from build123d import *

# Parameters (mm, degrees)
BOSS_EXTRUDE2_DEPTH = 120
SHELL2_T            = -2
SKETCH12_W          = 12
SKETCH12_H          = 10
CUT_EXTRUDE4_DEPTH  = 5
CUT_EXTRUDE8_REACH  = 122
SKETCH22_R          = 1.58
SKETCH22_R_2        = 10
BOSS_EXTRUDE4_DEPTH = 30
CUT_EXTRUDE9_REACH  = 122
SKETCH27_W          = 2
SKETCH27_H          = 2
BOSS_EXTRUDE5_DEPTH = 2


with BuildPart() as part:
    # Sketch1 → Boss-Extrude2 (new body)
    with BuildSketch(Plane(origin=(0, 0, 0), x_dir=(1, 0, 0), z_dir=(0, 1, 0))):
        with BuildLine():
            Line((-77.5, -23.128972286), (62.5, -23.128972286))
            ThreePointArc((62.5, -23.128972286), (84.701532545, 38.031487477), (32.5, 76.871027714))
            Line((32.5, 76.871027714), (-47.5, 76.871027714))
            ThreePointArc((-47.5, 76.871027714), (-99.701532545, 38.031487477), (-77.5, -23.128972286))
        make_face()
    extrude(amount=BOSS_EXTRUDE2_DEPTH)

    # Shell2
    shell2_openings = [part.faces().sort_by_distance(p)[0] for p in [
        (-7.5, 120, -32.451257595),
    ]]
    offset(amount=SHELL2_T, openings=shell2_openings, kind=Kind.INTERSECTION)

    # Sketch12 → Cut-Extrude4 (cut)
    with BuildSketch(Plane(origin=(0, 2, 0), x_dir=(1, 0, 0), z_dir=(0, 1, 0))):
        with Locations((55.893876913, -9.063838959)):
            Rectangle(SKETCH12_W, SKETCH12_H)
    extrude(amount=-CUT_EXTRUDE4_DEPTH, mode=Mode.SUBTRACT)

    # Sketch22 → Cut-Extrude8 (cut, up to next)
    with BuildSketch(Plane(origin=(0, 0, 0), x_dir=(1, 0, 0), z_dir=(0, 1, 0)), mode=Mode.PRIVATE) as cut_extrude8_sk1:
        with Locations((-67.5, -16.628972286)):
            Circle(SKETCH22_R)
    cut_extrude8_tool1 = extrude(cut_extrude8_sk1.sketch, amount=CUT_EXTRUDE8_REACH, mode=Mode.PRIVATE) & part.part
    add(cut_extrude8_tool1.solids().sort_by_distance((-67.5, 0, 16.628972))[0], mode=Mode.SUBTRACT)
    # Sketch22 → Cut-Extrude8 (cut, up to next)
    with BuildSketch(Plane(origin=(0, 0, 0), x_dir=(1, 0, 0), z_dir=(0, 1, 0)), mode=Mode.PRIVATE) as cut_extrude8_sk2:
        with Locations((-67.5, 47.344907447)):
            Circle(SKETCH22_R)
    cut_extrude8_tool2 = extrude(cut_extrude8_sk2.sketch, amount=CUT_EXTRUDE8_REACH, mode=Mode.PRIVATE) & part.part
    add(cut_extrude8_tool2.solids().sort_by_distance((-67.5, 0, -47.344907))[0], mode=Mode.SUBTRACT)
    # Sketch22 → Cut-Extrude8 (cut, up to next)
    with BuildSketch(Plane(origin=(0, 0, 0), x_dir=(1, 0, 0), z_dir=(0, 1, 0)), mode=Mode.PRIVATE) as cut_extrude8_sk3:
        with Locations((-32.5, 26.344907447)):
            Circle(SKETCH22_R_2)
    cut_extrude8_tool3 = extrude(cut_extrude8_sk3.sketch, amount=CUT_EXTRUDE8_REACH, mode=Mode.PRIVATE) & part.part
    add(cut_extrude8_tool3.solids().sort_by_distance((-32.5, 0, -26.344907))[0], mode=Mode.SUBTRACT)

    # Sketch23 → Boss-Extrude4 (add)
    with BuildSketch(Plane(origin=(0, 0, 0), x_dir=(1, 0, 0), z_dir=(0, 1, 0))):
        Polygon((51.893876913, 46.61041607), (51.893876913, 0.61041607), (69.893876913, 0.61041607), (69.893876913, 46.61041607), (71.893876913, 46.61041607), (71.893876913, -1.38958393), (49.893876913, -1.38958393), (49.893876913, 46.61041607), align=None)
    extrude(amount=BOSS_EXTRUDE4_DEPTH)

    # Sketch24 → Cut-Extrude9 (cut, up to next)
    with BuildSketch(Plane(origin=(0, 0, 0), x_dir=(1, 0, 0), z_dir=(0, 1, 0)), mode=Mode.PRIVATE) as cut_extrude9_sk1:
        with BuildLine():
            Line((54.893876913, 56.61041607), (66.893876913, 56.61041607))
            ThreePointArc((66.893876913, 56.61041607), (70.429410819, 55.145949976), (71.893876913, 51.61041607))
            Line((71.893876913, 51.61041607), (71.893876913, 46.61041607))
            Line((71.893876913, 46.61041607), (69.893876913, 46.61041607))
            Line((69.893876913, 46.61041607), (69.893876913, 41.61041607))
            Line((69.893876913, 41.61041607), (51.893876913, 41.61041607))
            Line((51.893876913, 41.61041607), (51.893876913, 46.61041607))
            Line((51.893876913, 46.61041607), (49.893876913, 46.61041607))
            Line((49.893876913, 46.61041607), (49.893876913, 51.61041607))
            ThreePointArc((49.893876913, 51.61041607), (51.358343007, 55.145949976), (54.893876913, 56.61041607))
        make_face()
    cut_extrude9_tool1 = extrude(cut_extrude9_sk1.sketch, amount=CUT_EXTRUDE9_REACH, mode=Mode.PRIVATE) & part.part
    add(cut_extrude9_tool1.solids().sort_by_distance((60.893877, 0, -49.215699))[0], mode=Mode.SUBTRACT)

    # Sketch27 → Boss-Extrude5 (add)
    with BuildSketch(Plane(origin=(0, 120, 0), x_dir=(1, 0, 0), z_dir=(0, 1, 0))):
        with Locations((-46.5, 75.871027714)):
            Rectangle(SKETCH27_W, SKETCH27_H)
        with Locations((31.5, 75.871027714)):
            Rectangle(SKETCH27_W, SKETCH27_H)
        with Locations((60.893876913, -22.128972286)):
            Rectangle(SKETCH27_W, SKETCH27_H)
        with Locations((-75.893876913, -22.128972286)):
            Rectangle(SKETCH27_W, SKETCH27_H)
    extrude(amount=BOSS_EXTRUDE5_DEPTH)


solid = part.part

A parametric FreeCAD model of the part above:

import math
import FreeCAD as App
import Part
import Sketcher

V = App.Vector


def faces_at(feature, points):
    """Names of the faces that lie closest to the given points."""
    faces = feature.Shape.Faces
    near = lambda p: min(range(len(faces)), key=lambda i: faces[i].distToShape(Part.Vertex(*p))[0])
    return sorted({f"Face{near(p) + 1}" for p in points})

doc = App.newDocument("Part")
body = doc.addObject("PartDesign::Body", "Body")

sketch1 = body.newObject("Sketcher::SketchObject", "Sketch")
sketch1.AttachmentSupport = (doc.getObject("XZ_Plane"), [""])
sketch1.MapMode = "FlatFace"
sketch1.addGeometry([
    Part.LineSegment(V(-78, 23, 0), V(62, 23, 0)),
    Part.ArcOfCircle(Part.Circle(V(32, -22, 0), V(0, 0, 1), 54), math.radians(-90), math.radians(57)),
    Part.LineSegment(V(32, -77, 0), V(-48, -77, 0)),
    Part.ArcOfCircle(Part.Circle(V(-48, -22, 0), V(0, 0, 1), 54), math.radians(123), math.radians(270)),
], False)
sketch1.addConstraint([
    Sketcher.Constraint("Coincident", 0, 2, 1, 2),
    Sketcher.Constraint("Tangent", 1, 1, 2, 1),
    Sketcher.Constraint("Tangent", 2, 2, 3, 2),
    Sketcher.Constraint("Coincident", 3, 1, 0, 1),
    Sketcher.Constraint("Horizontal", 0),
    Sketcher.Constraint("Horizontal", 2),
    Sketcher.Constraint("Equal", 1, 3),
    Sketcher.Constraint("Radius", 1, 54.5),
    Sketcher.Constraint("DistanceX", 0, 1, 0, 2, 140.0),
    Sketcher.Constraint("DistanceX", 2, 2, 2, 1, 80.0),
    Sketcher.Constraint("DistanceX", -1, 1, 1, 3, 32.5),
    Sketcher.Constraint("DistanceY", 1, 3, -1, 1, 22.371028),
])
pad1 = body.newObject("PartDesign::Pad", "Pad")
pad1.Profile = sketch1
pad1.Length = 120
pad1.Reversed = True
doc.recompute()

thickness = body.newObject("PartDesign::Thickness", "Thickness")
thickness.Base = (pad1, faces_at(pad1, [(-7.5, 120, -26.871)]))
thickness.Value = 2
thickness.Reversed = True
thickness.Join = "Intersection"

sketch2 = body.newObject("Sketcher::SketchObject", "Sketch001")
sketch2.AttachmentSupport = (doc.getObject("XZ_Plane"), [""])
sketch2.MapMode = "FlatFace"
sketch2.AttachmentOffset = App.Placement(V(0, 0, -2), App.Rotation())
sketch2.addGeometry([
    Part.LineSegment(V(50, 4, 0), V(50, 14, 0)),
    Part.LineSegment(V(50, 14, 0), V(62, 14, 0)),
    Part.LineSegment(V(62, 14, 0), V(62, 4, 0)),
    Part.LineSegment(V(62, 4, 0), V(50, 4, 0)),
], False)
sketch2.addConstraint([
    Sketcher.Constraint("Coincident", 0, 2, 1, 1),
    Sketcher.Constraint("Coincident", 1, 2, 2, 1),
    Sketcher.Constraint("Coincident", 2, 2, 3, 1),
    Sketcher.Constraint("Coincident", 3, 2, 0, 1),
    Sketcher.Constraint("Vertical", 0),
    Sketcher.Constraint("Horizontal", 1),
    Sketcher.Constraint("Vertical", 2),
    Sketcher.Constraint("Horizontal", 3),
    Sketcher.Constraint("DistanceX", 1, 1, 1, 2, 12.0),
    Sketcher.Constraint("DistanceY", 0, 1, 0, 2, 10.0),
    Sketcher.Constraint("DistanceY", -1, 1, 0, 2, 14.063839),
    Sketcher.Constraint("DistanceX", -1, 1, 0, 2, 49.893877),
])
pocket1 = body.newObject("PartDesign::Pocket", "Pocket")
pocket1.Profile = sketch2
pocket1.Length = 5
pocket1.Reversed = True

sketch3 = body.newObject("Sketcher::SketchObject", "Sketch002")
sketch3.AttachmentSupport = (doc.getObject("XZ_Plane"), [""])
sketch3.MapMode = "FlatFace"
sketch3.addGeometry(Part.Circle(V(-67.5, 16.6, 0), V(0, 0, 1), 1.6), False)
sketch3.addConstraint([
    Sketcher.Constraint("Diameter", 0, 3.16),
    Sketcher.Constraint("DistanceX", 0, 3, -1, 1, 67.5),
    Sketcher.Constraint("DistanceY", -1, 1, 0, 3, 16.628972),
])
pocket2 = body.newObject("PartDesign::Pocket", "Pocket001")
pocket2.Profile = sketch3
pocket2.Type = "UpToFirst"

sketch4 = body.newObject("Sketcher::SketchObject", "Sketch003")
sketch4.AttachmentSupport = (doc.getObject("XZ_Plane"), [""])
sketch4.MapMode = "FlatFace"
sketch4.addGeometry(Part.Circle(V(-67.5, -47.3, 0), V(0, 0, 1), 1.6), False)
sketch4.addConstraint([
    Sketcher.Constraint("Diameter", 0, 3.16),
    Sketcher.Constraint("DistanceX", 0, 3, -1, 1, 67.5),
    Sketcher.Constraint("DistanceY", 0, 3, -1, 1, 47.344907),
])
pocket3 = body.newObject("PartDesign::Pocket", "Pocket002")
pocket3.Profile = sketch4
pocket3.Type = "UpToFirst"

sketch5 = body.newObject("Sketcher::SketchObject", "Sketch004")
sketch5.AttachmentSupport = (doc.getObject("XZ_Plane"), [""])
sketch5.MapMode = "FlatFace"
sketch5.addGeometry(Part.Circle(V(-32, -26, 0), V(0, 0, 1), 10), False)
sketch5.addConstraint([
    Sketcher.Constraint("Diameter", 0, 20.0),
    Sketcher.Constraint("DistanceX", 0, 3, -1, 1, 32.5),
    Sketcher.Constraint("DistanceY", 0, 3, -1, 1, 26.344907),
])
pocket4 = body.newObject("PartDesign::Pocket", "Pocket003")
pocket4.Profile = sketch5
pocket4.Type = "UpToFirst"

sketch6 = body.newObject("Sketcher::SketchObject", "Sketch005")
sketch6.AttachmentSupport = (doc.getObject("XZ_Plane"), [""])
sketch6.MapMode = "FlatFace"
sketch6.addGeometry([
    Part.LineSegment(V(51.9, -0.6, 0), V(51.9, -46.6, 0)),
    Part.LineSegment(V(51.9, -46.6, 0), V(49.9, -46.6, 0)),
    Part.LineSegment(V(49.9, -46.6, 0), V(49.9, 1.4, 0)),
    Part.LineSegment(V(49.9, 1.4, 0), V(71.9, 1.4, 0)),
    Part.LineSegment(V(71.9, 1.4, 0), V(71.9, -46.6, 0)),
    Part.LineSegment(V(71.9, -46.6, 0), V(69.9, -46.6, 0)),
    Part.LineSegment(V(69.9, -46.6, 0), V(69.9, -0.6, 0)),
    Part.LineSegment(V(69.9, -0.6, 0), V(51.9, -0.6, 0)),
], False)
sketch6.addConstraint([
    Sketcher.Constraint("Coincident", 0, 2, 1, 1),
    Sketcher.Constraint("Coincident", 1, 2, 2, 1),
    Sketcher.Constraint("Coincident", 2, 2, 3, 1),
    Sketcher.Constraint("Coincident", 3, 2, 4, 1),
    Sketcher.Constraint("Coincident", 4, 2, 5, 1),
    Sketcher.Constraint("Coincident", 5, 2, 6, 1),
    Sketcher.Constraint("Coincident", 6, 2, 7, 1),
    Sketcher.Constraint("Coincident", 7, 2, 0, 1),
    Sketcher.Constraint("Vertical", 0),
    Sketcher.Constraint("Horizontal", 1),
    Sketcher.Constraint("Vertical", 2),
    Sketcher.Constraint("Horizontal", 3),
    Sketcher.Constraint("Vertical", 4),
    Sketcher.Constraint("Horizontal", 5),
    Sketcher.Constraint("Vertical", 6),
    Sketcher.Constraint("Horizontal", 7),
    Sketcher.Constraint("Horizontal", 1, 2, 4, 2),
    Sketcher.Constraint("Equal", 1, 5),
    Sketcher.Constraint("DistanceX", 1, 2, 1, 1, 2.0),
    Sketcher.Constraint("DistanceX", 3, 1, 3, 2, 22.0),
    Sketcher.Constraint("DistanceY", 0, 2, 0, 1, 46.0),
    Sketcher.Constraint("DistanceY", 2, 1, 2, 2, 48.0),
    Sketcher.Constraint("DistanceX", -1, 1, 0, 2, 51.893877),
    Sketcher.Constraint("DistanceY", 0, 2, -1, 1, 46.610416),
])
pad2 = body.newObject("PartDesign::Pad", "Pad001")
pad2.Profile = sketch6
pad2.Length = 30
pad2.Reversed = True

sketch7 = body.newObject("Sketcher::SketchObject", "Sketch006")
sketch7.AttachmentSupport = (doc.getObject("XZ_Plane"), [""])
sketch7.MapMode = "FlatFace"
sketch7.addGeometry([
    Part.LineSegment(V(66.9, -56.6, 0), V(54.9, -56.6, 0)),
    Part.ArcOfCircle(Part.Circle(V(54.9, -51.6, 0), V(0, 0, 1), 5), math.radians(180), math.radians(270)),
    Part.LineSegment(V(49.9, -51.6, 0), V(49.9, -46.6, 0)),
    Part.LineSegment(V(49.9, -46.6, 0), V(51.9, -46.6, 0)),
    Part.LineSegment(V(51.9, -46.6, 0), V(51.9, -41.6, 0)),
    Part.LineSegment(V(51.9, -41.6, 0), V(69.9, -41.6, 0)),
    Part.LineSegment(V(69.9, -41.6, 0), V(69.9, -46.6, 0)),
    Part.LineSegment(V(69.9, -46.6, 0), V(71.9, -46.6, 0)),
    Part.LineSegment(V(71.9, -46.6, 0), V(71.9, -51.6, 0)),
    Part.ArcOfCircle(Part.Circle(V(66.9, -51.6, 0), V(0, 0, 1), 5), math.radians(-90), math.radians(0)),
], False)
sketch7.addConstraint([
    Sketcher.Constraint("Tangent", 0, 2, 1, 2),
    Sketcher.Constraint("Tangent", 1, 1, 2, 1),
    Sketcher.Constraint("Coincident", 2, 2, 3, 1),
    Sketcher.Constraint("Coincident", 3, 2, 4, 1),
    Sketcher.Constraint("Coincident", 4, 2, 5, 1),
    Sketcher.Constraint("Coincident", 5, 2, 6, 1),
    Sketcher.Constraint("Coincident", 6, 2, 7, 1),
    Sketcher.Constraint("Coincident", 7, 2, 8, 1),
    Sketcher.Constraint("Tangent", 8, 2, 9, 2),
    Sketcher.Constraint("Tangent", 9, 1, 0, 1),
    Sketcher.Constraint("Horizontal", 0),
    Sketcher.Constraint("Vertical", 2),
    Sketcher.Constraint("Horizontal", 3),
    Sketcher.Constraint("Vertical", 4),
    Sketcher.Constraint("Horizontal", 5),
    Sketcher.Constraint("Vertical", 6),
    Sketcher.Constraint("Horizontal", 7),
    Sketcher.Constraint("Vertical", 8),
    Sketcher.Constraint("Equal", 1, 9),
    Sketcher.Constraint("Horizontal", 3, 2, 6, 2),
    Sketcher.Constraint("Equal", 3, 7),
    Sketcher.Constraint("Equal", 2, 4),
    Sketcher.Constraint("Radius", 1, 5.0),
    Sketcher.Constraint("DistanceX", 0, 2, 0, 1, 12.0),
    Sketcher.Constraint("DistanceX", 3, 1, 3, 2, 2.0),
    Sketcher.Constraint("DistanceY", 2, 1, 2, 2, 5.0),
    Sketcher.Constraint("DistanceX", -1, 1, 1, 3, 54.893877),
    Sketcher.Constraint("DistanceY", 1, 3, -1, 1, 51.610416),
])
pocket5 = body.newObject("PartDesign::Pocket", "Pocket004")
pocket5.Profile = sketch7
pocket5.Type = "UpToFirst"

sketch8 = body.newObject("Sketcher::SketchObject", "Sketch007")
sketch8.AttachmentSupport = (doc.getObject("XZ_Plane"), [""])
sketch8.MapMode = "FlatFace"
sketch8.AttachmentOffset = App.Placement(V(0, 0, -120), App.Rotation())
sketch8.addGeometry([
    Part.LineSegment(V(-47.5, -76.9, 0), V(-47.5, -74.9, 0)),
    Part.LineSegment(V(-47.5, -74.9, 0), V(-45.5, -74.9, 0)),
    Part.LineSegment(V(-45.5, -74.9, 0), V(-45.5, -76.9, 0)),
    Part.LineSegment(V(-45.5, -76.9, 0), V(-47.5, -76.9, 0)),
    Part.LineSegment(V(30.5, -76.9, 0), V(30.5, -74.9, 0)),
    Part.LineSegment(V(30.5, -74.9, 0), V(32.5, -74.9, 0)),
    Part.LineSegment(V(32.5, -74.9, 0), V(32.5, -76.9, 0)),
    Part.LineSegment(V(32.5, -76.9, 0), V(30.5, -76.9, 0)),
    Part.LineSegment(V(59.9, 21.1, 0), V(59.9, 23.1, 0)),
    Part.LineSegment(V(59.9, 23.1, 0), V(61.9, 23.1, 0)),
    Part.LineSegment(V(61.9, 23.1, 0), V(61.9, 21.1, 0)),
    Part.LineSegment(V(61.9, 21.1, 0), V(59.9, 21.1, 0)),
    Part.LineSegment(V(-76.9, 21.1, 0), V(-76.9, 23.1, 0)),
    Part.LineSegment(V(-76.9, 23.1, 0), V(-74.9, 23.1, 0)),
    Part.LineSegment(V(-74.9, 23.1, 0), V(-74.9, 21.1, 0)),
    Part.LineSegment(V(-74.9, 21.1, 0), V(-76.9, 21.1, 0)),
], False)
sketch8.addConstraint([
    Sketcher.Constraint("Coincident", 0, 2, 1, 1),
    Sketcher.Constraint("Coincident", 1, 2, 2, 1),
    Sketcher.Constraint("Coincident", 2, 2, 3, 1),
    Sketcher.Constraint("Coincident", 3, 2, 0, 1),
    Sketcher.Constraint("Coincident", 4, 2, 5, 1),
    Sketcher.Constraint("Coincident", 5, 2, 6, 1),
    Sketcher.Constraint("Coincident", 6, 2, 7, 1),
    Sketcher.Constraint("Coincident", 7, 2, 4, 1),
    Sketcher.Constraint("Coincident", 8, 2, 9, 1),
    Sketcher.Constraint("Coincident", 9, 2, 10, 1),
    Sketcher.Constraint("Coincident", 10, 2, 11, 1),
    Sketcher.Constraint("Coincident", 11, 2, 8, 1),
    Sketcher.Constraint("Coincident", 12, 2, 13, 1),
    Sketcher.Constraint("Coincident", 13, 2, 14, 1),
    Sketcher.Constraint("Coincident", 14, 2, 15, 1),
    Sketcher.Constraint("Coincident", 15, 2, 12, 1),
    Sketcher.Constraint("Vertical", 0),
    Sketcher.Constraint("Horizontal", 1),
    Sketcher.Constraint("Vertical", 2),
    Sketcher.Constraint("Horizontal", 3),
    Sketcher.Constraint("Vertical", 4),
    Sketcher.Constraint("Horizontal", 5),
    Sketcher.Constraint("Vertical", 6),
    Sketcher.Constraint("Horizontal", 7),
    Sketcher.Constraint("Vertical", 8),
    Sketcher.Constraint("Horizontal", 9),
    Sketcher.Constraint("Vertical", 10),
    Sketcher.Constraint("Horizontal", 11),
    Sketcher.Constraint("Vertical", 12),
    Sketcher.Constraint("Horizontal", 13),
    Sketcher.Constraint("Vertical", 14),
    Sketcher.Constraint("Horizontal", 15),
    Sketcher.Constraint("Horizontal", 1, 2, 4, 2),
    Sketcher.Constraint("Horizontal", 3, 2, 6, 2),
    Sketcher.Constraint("Horizontal", 9, 2, 12, 2),
    Sketcher.Constraint("Horizontal", 11, 2, 14, 2),
    Sketcher.Constraint("Equal", 3, 5),
    Sketcher.Constraint("Equal", 7, 9),
    Sketcher.Constraint("Equal", 11, 13),
    Sketcher.Constraint("Equal", 15, 0),
    Sketcher.Constraint("Equal", 6, 8),
    Sketcher.Constraint("DistanceX", 1, 1, 1, 2, 2.0),
    Sketcher.Constraint("DistanceX", 1, 2, 4, 2, 76.0),
    Sketcher.Constraint("DistanceY", 5, 2, 8, 2, 98.0),
    Sketcher.Constraint("DistanceX", 0, 2, -1, 1, 47.5),
    Sketcher.Constraint("DistanceY", 0, 2, -1, 1, 74.871028),
    Sketcher.Constraint("DistanceX", -1, 1, 8, 2, 59.893877),
    Sketcher.Constraint("DistanceX", 12, 2, -1, 1, 76.893877),
])
pad3 = body.newObject("PartDesign::Pad", "Pad002")
pad3.Profile = sketch8
pad3.Length = 2
pad3.Reversed = True

doc.recompute()
